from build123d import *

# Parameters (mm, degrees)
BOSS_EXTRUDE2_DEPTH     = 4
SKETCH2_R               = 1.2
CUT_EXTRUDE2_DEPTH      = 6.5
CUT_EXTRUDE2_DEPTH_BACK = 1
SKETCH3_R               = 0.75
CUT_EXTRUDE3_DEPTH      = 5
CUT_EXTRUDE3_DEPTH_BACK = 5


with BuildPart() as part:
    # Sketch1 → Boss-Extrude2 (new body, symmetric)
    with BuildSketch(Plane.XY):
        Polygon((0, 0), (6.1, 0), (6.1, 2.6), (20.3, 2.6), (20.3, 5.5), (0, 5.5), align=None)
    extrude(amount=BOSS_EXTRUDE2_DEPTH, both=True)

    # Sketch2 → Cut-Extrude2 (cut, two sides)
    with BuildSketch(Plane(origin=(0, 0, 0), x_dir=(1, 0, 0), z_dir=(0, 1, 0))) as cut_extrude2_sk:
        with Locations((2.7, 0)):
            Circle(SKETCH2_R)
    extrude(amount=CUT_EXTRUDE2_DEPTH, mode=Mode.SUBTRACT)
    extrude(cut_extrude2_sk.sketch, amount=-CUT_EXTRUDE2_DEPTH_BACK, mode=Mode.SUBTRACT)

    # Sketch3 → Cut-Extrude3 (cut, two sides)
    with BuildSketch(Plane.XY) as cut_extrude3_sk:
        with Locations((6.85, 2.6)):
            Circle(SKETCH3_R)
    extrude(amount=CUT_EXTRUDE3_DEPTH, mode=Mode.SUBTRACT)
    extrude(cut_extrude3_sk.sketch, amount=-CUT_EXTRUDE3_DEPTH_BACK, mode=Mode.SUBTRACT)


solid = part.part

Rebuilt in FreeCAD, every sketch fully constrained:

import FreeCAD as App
import Part
import Sketcher


def add_polygon(sketch, points):
    """Adds a closed chain of lines whose ends are joined by coincident constraints."""
    first, n = sketch.GeometryCount, len(points)
    for a, b in zip(points, points[1:] + points[:1]):
        sketch.addGeometry(Part.LineSegment(App.Vector(*a, 0), App.Vector(*b, 0)), False)
    for i in range(n):
        sketch.addConstraint(Sketcher.Constraint("Coincident", first + i, 2, first + (i + 1) % n, 1))

doc = App.newDocument("Part")
body = doc.addObject("PartDesign::Body", "Body")

# Sketch on XY plane
sketch1 = body.newObject("Sketcher::SketchObject", "Sketch")
sketch1.AttachmentSupport = (doc.getObject("XY_Plane"), [""])
sketch1.MapMode = "FlatFace"
add_polygon(sketch1, [(0, 0), (6.1, 0), (6.1, 2.6), (20.3, 2.6), (20.3, 5.5), (0, 5.5)])  # lines 0-5
sketch1.addConstraint([
    Sketcher.Constraint("Horizontal", 0),
    Sketcher.Constraint("Vertical", 1),
    Sketcher.Constraint("Horizontal", 2),
    Sketcher.Constraint("Vertical", 3),
    Sketcher.Constraint("Horizontal", 4),
    Sketcher.Constraint("Vertical", 5),
    Sketcher.Constraint("Coincident", 5, 2, -1, 1),
    Sketcher.Constraint("DistanceX", 0, 1, 0, 2, 6.1),
    Sketcher.Constraint("DistanceX", 2, 1, 2, 2, 14.2),
    Sketcher.Constraint("DistanceY", 1, 1, 1, 2, 2.6),
    Sketcher.Constraint("DistanceY", 3, 1, 3, 2, 2.9),
])
pad1 = body.newObject("PartDesign::Pad", "Pad")
pad1.Profile = sketch1
pad1.Length = 8
pad1.Midplane = True

# Sketch on XZ plane
sketch2 = body.newObject("Sketcher::SketchObject", "Sketch001")
sketch2.AttachmentSupport = (doc.getObject("XZ_Plane"), [""])
sketch2.MapMode = "FlatFace"
sketch2.addGeometry(Part.Circle(App.Vector(2.7, 0, 0), App.Vector(0, 0, 1), 1.2), False)
sketch2.addConstraint([
    Sketcher.Constraint("PointOnObject", 0, 3, -1),
    Sketcher.Constraint("Diameter", 0, 2.4),
    Sketcher.Constraint("DistanceX", -1, 1, 0, 3, 2.7),
])
pocket1 = body.newObject("PartDesign::Pocket", "Pocket")
pocket1.Profile = sketch2
pocket1.Type = "ThroughAll"
pocket1.Midplane = True

# Sketch on XY plane
sketch3 = body.newObject("Sketcher::SketchObject", "Sketch002")
sketch3.AttachmentSupport = (doc.getObject("XY_Plane"), [""])
sketch3.MapMode = "FlatFace"
sketch3.addGeometry(Part.Circle(App.Vector(6.8, 2.6, 0), App.Vector(0, 0, 1), 0.8), False)
sketch3.addConstraint([
    Sketcher.Constraint("Diameter", 0, 1.5),
    Sketcher.Constraint("DistanceY", -1, 1, 0, 3, 2.6),
    Sketcher.Constraint("DistanceX", -1, 1, 0, 3, 6.85),
])
pocket2 = body.newObject("PartDesign::Pocket", "Pocket001")
pocket2.Profile = sketch3
pocket2.Type = "ThroughAll"
pocket2.Midplane = True

doc.recompute()
